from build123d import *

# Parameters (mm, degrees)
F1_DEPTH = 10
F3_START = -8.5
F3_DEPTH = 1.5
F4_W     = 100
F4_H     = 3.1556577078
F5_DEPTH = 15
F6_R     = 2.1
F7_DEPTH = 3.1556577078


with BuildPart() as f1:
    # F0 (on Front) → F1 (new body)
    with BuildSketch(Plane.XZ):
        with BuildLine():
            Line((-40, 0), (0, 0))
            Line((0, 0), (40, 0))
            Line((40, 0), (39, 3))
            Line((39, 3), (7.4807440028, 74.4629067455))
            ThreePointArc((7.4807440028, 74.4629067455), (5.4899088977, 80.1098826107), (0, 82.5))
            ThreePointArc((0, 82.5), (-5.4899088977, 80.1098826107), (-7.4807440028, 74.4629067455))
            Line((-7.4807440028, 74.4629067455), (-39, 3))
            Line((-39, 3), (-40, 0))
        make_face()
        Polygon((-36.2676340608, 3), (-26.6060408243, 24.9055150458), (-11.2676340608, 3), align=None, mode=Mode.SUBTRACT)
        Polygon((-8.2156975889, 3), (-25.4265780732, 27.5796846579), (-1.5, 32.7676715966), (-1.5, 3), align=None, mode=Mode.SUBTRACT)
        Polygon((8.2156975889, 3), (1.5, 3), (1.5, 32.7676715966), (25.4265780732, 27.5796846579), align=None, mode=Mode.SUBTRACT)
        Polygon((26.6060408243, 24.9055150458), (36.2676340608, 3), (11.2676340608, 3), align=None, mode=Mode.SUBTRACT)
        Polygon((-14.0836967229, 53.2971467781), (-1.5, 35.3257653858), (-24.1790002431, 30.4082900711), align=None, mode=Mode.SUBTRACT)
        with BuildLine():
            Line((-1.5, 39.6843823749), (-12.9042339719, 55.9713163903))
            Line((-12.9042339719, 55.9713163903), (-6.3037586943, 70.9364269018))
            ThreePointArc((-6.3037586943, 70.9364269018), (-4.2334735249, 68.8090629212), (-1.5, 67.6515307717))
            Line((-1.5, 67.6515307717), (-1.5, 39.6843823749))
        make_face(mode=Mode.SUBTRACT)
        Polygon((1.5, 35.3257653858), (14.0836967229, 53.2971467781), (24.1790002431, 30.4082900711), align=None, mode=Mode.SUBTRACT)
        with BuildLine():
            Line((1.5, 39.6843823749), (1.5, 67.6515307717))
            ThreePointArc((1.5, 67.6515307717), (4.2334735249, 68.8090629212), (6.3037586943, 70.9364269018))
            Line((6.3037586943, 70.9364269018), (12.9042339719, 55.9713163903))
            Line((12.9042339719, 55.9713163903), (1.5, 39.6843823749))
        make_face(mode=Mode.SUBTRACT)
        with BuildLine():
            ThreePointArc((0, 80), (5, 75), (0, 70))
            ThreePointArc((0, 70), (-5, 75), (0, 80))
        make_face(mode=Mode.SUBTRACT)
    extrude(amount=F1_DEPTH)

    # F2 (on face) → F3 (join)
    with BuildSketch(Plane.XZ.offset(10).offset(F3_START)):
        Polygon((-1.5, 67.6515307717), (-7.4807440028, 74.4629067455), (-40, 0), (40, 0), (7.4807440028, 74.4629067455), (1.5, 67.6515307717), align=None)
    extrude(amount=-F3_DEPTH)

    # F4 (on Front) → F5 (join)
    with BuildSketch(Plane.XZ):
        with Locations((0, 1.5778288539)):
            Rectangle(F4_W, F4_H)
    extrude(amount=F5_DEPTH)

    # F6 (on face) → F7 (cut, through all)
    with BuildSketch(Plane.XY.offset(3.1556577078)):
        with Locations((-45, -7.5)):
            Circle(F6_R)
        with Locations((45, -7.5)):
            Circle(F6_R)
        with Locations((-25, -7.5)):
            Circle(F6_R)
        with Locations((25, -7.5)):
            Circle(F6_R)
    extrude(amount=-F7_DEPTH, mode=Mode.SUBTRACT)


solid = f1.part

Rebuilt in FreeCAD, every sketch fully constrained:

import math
import FreeCAD as App
import Part
import Sketcher
Q = App.Units.Quantity

doc = App.newDocument("Part")
params = doc.addObject("Spreadsheet::Sheet", "Params")
for row, (alias, value) in enumerate([
    ("sketch1_diameter", "10 mm"),
    ("sketch1_radius", "7.5 mm"),
    ("sketch1_width", "80 mm"),
    ("sketch1_width2", "25 mm"),
    ("pad1_length", "10 mm"),
    ("sketch2_width", "80 mm"),
    ("sketch2_width2", "3 mm"),
    ("pad2_length", "1.5 mm"),
    ("sketch3_width", "100 mm"),
    ("pad3_length", "15 mm"),
    ("sketch4_diameter", "4.2 mm"),
], start=1):
    params.set(f"A{row}", alias)
    params.set(f"B{row}", "=" + value)
    params.setAlias(f"B{row}", alias)

body = doc.addObject("PartDesign::Body", "Body")

# Sketch on XZ plane
sketch1 = body.newObject("Sketcher::SketchObject", "Sketch")
sketch1.AttachmentSupport = (doc.getObject("XZ_Plane"), [""])
sketch1.MapMode = "FlatFace"
sketch1.addGeometry([
    Part.LineSegment(App.Vector(-40, 0, 0), App.Vector(40, 0, 0)),  # 0
    Part.LineSegment(App.Vector(40, 0, 0), App.Vector(39, 3, 0)),  # 1
    Part.LineSegment(App.Vector(39, 3, 0), App.Vector(7.5, 74.5, 0)),  # 2
    Part.ArcOfCircle(Part.Circle(App.Vector(0, 75, 0), App.Vector(0, 0, 1), 7.5), math.radians(-4), math.radians(90)),  # 3
    Part.ArcOfCircle(Part.Circle(App.Vector(0, 75, 0), App.Vector(0, 0, 1), 7.5), math.radians(90), math.radians(184)),  # 4
    Part.LineSegment(App.Vector(-7.5, 74.5, 0), App.Vector(-39, 3, 0)),  # 5
    Part.LineSegment(App.Vector(-39, 3, 0), App.Vector(-40, 0, 0)),  # 6
    Part.LineSegment(App.Vector(-11.3, 3, 0), App.Vector(-36.3, 3, 0)),  # 7
    Part.LineSegment(App.Vector(-36.3, 3, 0), App.Vector(-26.6, 24.9, 0)),  # 8
    Part.LineSegment(App.Vector(-26.6, 24.9, 0), App.Vector(-11.3, 3, 0)),  # 9
    Part.LineSegment(App.Vector(-1.5, 3, 0), App.Vector(-8.2, 3, 0)),  # 10
    Part.LineSegment(App.Vector(-8.2, 3, 0), App.Vector(-25.4, 27.6, 0)),  # 11
    Part.LineSegment(App.Vector(-25.4, 27.6, 0), App.Vector(-1.5, 32.8, 0)),  # 12
    Part.LineSegment(App.Vector(-1.5, 32.8, 0), App.Vector(-1.5, 3, 0)),  # 13
    Part.LineSegment(App.Vector(25.4, 27.6, 0), App.Vector(8.2, 3, 0)),  # 14
    Part.LineSegment(App.Vector(8.2, 3, 0), App.Vector(1.5, 3, 0)),  # 15
    Part.LineSegment(App.Vector(1.5, 3, 0), App.Vector(1.5, 32.8, 0)),  # 16
    Part.LineSegment(App.Vector(1.5, 32.8, 0), App.Vector(25.4, 27.6, 0)),  # 17
    Part.LineSegment(App.Vector(11.3, 3, 0), App.Vector(26.6, 24.9, 0)),  # 18
    Part.LineSegment(App.Vector(26.6, 24.9, 0), App.Vector(36.3, 3, 0)),  # 19
    Part.LineSegment(App.Vector(36.3, 3, 0), App.Vector(11.3, 3, 0)),  # 20
    Part.LineSegment(App.Vector(-24.2, 30.4, 0), App.Vector(-14.1, 53.3, 0)),  # 21
    Part.LineSegment(App.Vector(-14.1, 53.3, 0), App.Vector(-1.5, 35.3, 0)),  # 22
    Part.LineSegment(App.Vector(-1.5, 35.3, 0), App.Vector(-24.2, 30.4, 0)),  # 23
    Part.LineSegment(App.Vector(-1.5, 67.7, 0), App.Vector(-1.5, 39.7, 0)),  # 24
    Part.LineSegment(App.Vector(-1.5, 39.7, 0), App.Vector(-12.9, 56, 0)),  # 25
    Part.LineSegment(App.Vector(-12.9, 56, 0), App.Vector(-6.3, 70.9, 0)),  # 26
    Part.ArcOfCircle(Part.Circle(App.Vector(0, 75, 0), App.Vector(0, 0, 1), 7.5), math.radians(-147), math.radians(-102)),  # 27
    Part.LineSegment(App.Vector(24.2, 30.4, 0), App.Vector(1.5, 35.3, 0)),  # 28
    Part.LineSegment(App.Vector(1.5, 35.3, 0), App.Vector(14.1, 53.3, 0)),  # 29
    Part.LineSegment(App.Vector(14.1, 53.3, 0), App.Vector(24.2, 30.4, 0)),  # 30
    Part.LineSegment(App.Vector(12.9, 56, 0), App.Vector(1.5, 39.7, 0)),  # 31
    Part.LineSegment(App.Vector(1.5, 39.7, 0), App.Vector(1.5, 67.7, 0)),  # 32
    Part.ArcOfCircle(Part.Circle(App.Vector(0, 75, 0), App.Vector(0, 0, 1), 7.5), math.radians(-78), math.radians(-33)),  # 33
    Part.LineSegment(App.Vector(6.3, 70.9, 0), App.Vector(12.9, 56, 0)),  # 34
    Part.Circle(App.Vector(0, 75, 0), App.Vector(0, 0, 1), 5),  # 35
], False)
sketch1.addConstraint([
    Sketcher.Constraint("Coincident", 0, 2, 1, 1),
    Sketcher.Constraint("Coincident", 1, 2, 2, 1),
    Sketcher.Constraint("Coincident", 2, 2, 3, 1),
    Sketcher.Constraint("Tangent", 3, 2, 4, 1),
    Sketcher.Constraint("Coincident", 4, 2, 5, 1),
    Sketcher.Constraint("Coincident", 5, 2, 6, 1),
    Sketcher.Constraint("Coincident", 6, 2, 0, 1),
    Sketcher.Constraint("Coincident", 7, 2, 8, 1),
    Sketcher.Constraint("Coincident", 8, 2, 9, 1),
    Sketcher.Constraint("Coincident", 9, 2, 7, 1),
    Sketcher.Constraint("Coincident", 10, 2, 11, 1),
    Sketcher.Constraint("Coincident", 11, 2, 12, 1),
    Sketcher.Constraint("Coincident", 12, 2, 13, 1),
    Sketcher.Constraint("Coincident", 13, 2, 10, 1),
    Sketcher.Constraint("Coincident", 14, 2, 15, 1),
    Sketcher.Constraint("Coincident", 15, 2, 16, 1),
    Sketcher.Constraint("Coincident", 16, 2, 17, 1),
    Sketcher.Constraint("Coincident", 17, 2, 14, 1),
    Sketcher.Constraint("Coincident", 18, 2, 19, 1),
    Sketcher.Constraint("Coincident", 19, 2, 20, 1),
    Sketcher.Constraint("Coincident", 20, 2, 18, 1),
    Sketcher.Constraint("Coincident", 21, 2, 22, 1),
    Sketcher.Constraint("Coincident", 22, 2, 23, 1),
    Sketcher.Constraint("Coincident", 23, 2, 21, 1),
    Sketcher.Constraint("Coincident", 24, 2, 25, 1),
    Sketcher.Constraint("Coincident", 25, 2, 26, 1),
    Sketcher.Constraint("Coincident", 26, 2, 27, 1),
    Sketcher.Constraint("Coincident", 27, 2, 24, 1),
    Sketcher.Constraint("Coincident", 28, 2, 29, 1),
    Sketcher.Constraint("Coincident", 29, 2, 30, 1),
    Sketcher.Constraint("Coincident", 30, 2, 28, 1),
    Sketcher.Constraint("Coincident", 31, 2, 32, 1),
    Sketcher.Constraint("Coincident", 32, 2, 33, 1),
    Sketcher.Constraint("Coincident", 33, 2, 34, 1),
    Sketcher.Constraint("Coincident", 34, 2, 31, 1),
    Sketcher.Constraint("Horizontal", 0),
    Sketcher.Constraint("Horizontal", 7),
    Sketcher.Constraint("Horizontal", 10),
    Sketcher.Constraint("Vertical", 13),
    Sketcher.Constraint("Horizontal", 15),
    Sketcher.Constraint("Vertical", 16),
    Sketcher.Constraint("Horizontal", 20),
    Sketcher.Constraint("Vertical", 24),
    Sketcher.Constraint("Vertical", 32),
    Sketcher.Constraint("Coincident", 27, 3, 3, 3),
    Sketcher.Constraint("Coincident", 33, 3, 3, 3),
    Sketcher.Constraint("Coincident", 35, 3, 3, 3),
    Sketcher.Constraint("Equal", 3, 4),
    Sketcher.Constraint("Equal", 4, 27),
    Sketcher.Constraint("Equal", 27, 33),
    Sketcher.Constraint("Symmetric", 0, 2, 6, 2, -1, 1),
    Sketcher.Constraint("Symmetric", 2, 2, 4, 2, -2),
    Sketcher.Constraint("Symmetric", 1, 2, 5, 2, -2),
    Sketcher.Constraint("Symmetric", 10, 2, 14, 2, -2),
    Sketcher.Constraint("Symmetric", 12, 2, 16, 2, -2),
    Sketcher.Constraint("Symmetric", 11, 2, 17, 2, -2),
    Sketcher.Constraint("Symmetric", 8, 2, 18, 2, -2),
    Sketcher.Constraint("Symmetric", 7, 2, 19, 2, -2),
    Sketcher.Constraint("Symmetric", 22, 2, 28, 2, -2),
    Sketcher.Constraint("Symmetric", 21, 2, 29, 2, -2),
    Sketcher.Constraint("Symmetric", 23, 2, 30, 2, -2),
    Sketcher.Constraint("Symmetric", 24, 2, 31, 2, -2),
    Sketcher.Constraint("Symmetric", 25, 2, 34, 2, -2),
    Sketcher.Constraint("PointOnObject", 3, 2, -2),
    Sketcher.Constraint("Parallel", 5, 8),
    Sketcher.Constraint("Parallel", 9, 11),
    Sketcher.Constraint("Parallel", 14, 18),
    Sketcher.Constraint("Parallel", 8, 21),
    Sketcher.Constraint("Parallel", 11, 22),
    Sketcher.Constraint("Parallel", 12, 23),
    Sketcher.Constraint("Parallel", 22, 25),
    Sketcher.Constraint("Parallel", 21, 26),
    Sketcher.Constraint("Parallel", 30, 34),
    Sketcher.Constraint("Horizontal", 5, 2, 7, 2),
    Sketcher.Constraint("Horizontal", 9, 2, 10, 2),
    Sketcher.Constraint("Vertical", 13, 2, 22, 2),
    Sketcher.Constraint("Vertical", 22, 2, 24, 2),
    Sketcher.Constraint("Diameter", 35, Q("10 mm")),
    Sketcher.Constraint("Radius", 3, Q("7.5 mm")),
    Sketcher.Constraint("DistanceX", 0, 1, 0, 2, Q("80 mm")),
    Sketcher.Constraint("DistanceX", 7, 2, 7, 1, Q("25 mm")),
    Sketcher.Constraint("Angle", 9, Q("-55 deg")),
    Sketcher.Constraint("DistanceY", -1, 1, 3, 3, Q("75 mm")),
    Sketcher.Constraint("DistanceX", -1, 1, 1, 2, Q("39 mm")),
    Sketcher.Constraint("DistanceY", -1, 1, 1, 2, Q("3 mm")),
    Sketcher.Constraint("DistanceX", 13, 2, 15, 2, Q("3 mm")),
    Sketcher.Constraint("DistanceX", 23, 2, -1, 1, Q("24.179 mm")),
    Sketcher.Constraint("DistanceY", 13, 2, 13, 1, Q("29.767672 mm")),
    Sketcher.Constraint("DistanceY", 24, 2, 24, 1, Q("27.967148 mm")),
    Sketcher.Constraint("DistanceX", 10, 2, 10, 1, Q("6.715698 mm")),
    Sketcher.Constraint("DistanceX", 8, 2, -1, 1, Q("26.606041 mm")),
    Sketcher.Constraint("DistanceX", 11, 2, -1, 1, Q("25.426578 mm")),
    Sketcher.Constraint("DistanceY", -1, 1, 23, 2, Q("30.40829 mm")),
    Sketcher.Constraint("DistanceX", 26, 2, -1, 1, Q("6.303759 mm")),
    Sketcher.Constraint("DistanceX", 7, 2, 4, 2, Q("28.78689 mm")),
])
sketch1.setExpression("Constraints[77]", "Params.sketch1_diameter")
sketch1.setExpression("Constraints[78]", "Params.sketch1_radius")
sketch1.setExpression("Constraints[79]", "Params.sketch1_width")
sketch1.setExpression("Constraints[80]", "Params.sketch1_width2")
pad1 = body.newObject("PartDesign::Pad", "Pad")
pad1.Profile = sketch1
pad1.setExpression("Length", "Params.pad1_length")

# Sketch on XZ plane
sketch2 = body.newObject("Sketcher::SketchObject", "Sketch001")
sketch2.AttachmentSupport = (doc.getObject("XZ_Plane"), [""])
sketch2.MapMode = "FlatFace"
sketch2.AttachmentOffset = App.Placement(App.Vector(0, 0, 1.5), App.Rotation())
sketch2.addGeometry([
    Part.LineSegment(App.Vector(-1.5, 67.7, 0), App.Vector(-7.5, 74.5, 0)),  # 0
    Part.LineSegment(App.Vector(-7.5, 74.5, 0), App.Vector(-40, 0, 0)),  # 1
    Part.LineSegment(App.Vector(-40, 0, 0), App.Vector(40, 0, 0)),  # 2
    Part.LineSegment(App.Vector(40, 0, 0), App.Vector(7.5, 74.5, 0)),  # 3
    Part.LineSegment(App.Vector(7.5, 74.5, 0), App.Vector(1.5, 67.7, 0)),  # 4
    Part.LineSegment(App.Vector(1.5, 67.7, 0), App.Vector(-1.5, 67.7, 0)),  # 5
], False)
sketch2.addConstraint([
    Sketcher.Constraint("Coincident", 0, 2, 1, 1),
    Sketcher.Constraint("Coincident", 1, 2, 2, 1),
    Sketcher.Constraint("Coincident", 2, 2, 3, 1),
    Sketcher.Constraint("Coincident", 3, 2, 4, 1),
    Sketcher.Constraint("Coincident", 4, 2, 5, 1),
    Sketcher.Constraint("Coincident", 5, 2, 0, 1),
    Sketcher.Constraint("Horizontal", 2),
    Sketcher.Constraint("Horizontal", 5),
    Sketcher.Constraint("Symmetric", 1, 2, 2, 2, -1, 1),
    Sketcher.Constraint("Symmetric", 0, 2, 3, 2, -2),
    Sketcher.Constraint("Equal", 0, 4),
    Sketcher.Constraint("DistanceX", 2, 1, 2, 2, Q("80 mm")),
    Sketcher.Constraint("DistanceX", 5, 2, 5, 1, Q("3 mm")),
    Sketcher.Constraint("DistanceY", -1, 1, 4, 2, Q("67.651531 mm")),
    Sketcher.Constraint("DistanceX", 0, 2, 3, 2, Q("14.961488 mm")),
    Sketcher.Constraint("Distance", 0, Q("9.064444 mm")),
])
sketch2.setExpression("Constraints[11]", "Params.sketch2_width")
sketch2.setExpression("Constraints[12]", "Params.sketch2_width2")
pad2 = body.newObject("PartDesign::Pad", "Pad001")
pad2.Profile = sketch2
pad2.setExpression("Length", "Params.pad2_length")
pad2.Reversed = True

# Sketch on XZ plane
sketch3 = body.newObject("Sketcher::SketchObject", "Sketch002")
sketch3.AttachmentSupport = (doc.getObject("XZ_Plane"), [""])
sketch3.MapMode = "FlatFace"
sketch3.addGeometry([
    Part.LineSegment(App.Vector(-50, 3.2, 0), App.Vector(-50, 0, 0)),
    Part.LineSegment(App.Vector(-50, 0, 0), App.Vector(50, 0, 0)),
    Part.LineSegment(App.Vector(50, 0, 0), App.Vector(50, 3.2, 0)),
    Part.LineSegment(App.Vector(50, 3.2, 0), App.Vector(-50, 3.2, 0)),
], False)
sketch3.addConstraint([
    Sketcher.Constraint("Coincident", 0, 2, 1, 1),
    Sketcher.Constraint("Coincident", 1, 2, 2, 1),
    Sketcher.Constraint("Coincident", 2, 2, 3, 1),
    Sketcher.Constraint("Coincident", 3, 2, 0, 1),
    Sketcher.Constraint("Vertical", 0),
    Sketcher.Constraint("Horizontal", 1),
    Sketcher.Constraint("Vertical", 2),
    Sketcher.Constraint("Horizontal", 3),
    Sketcher.Constraint("Symmetric", 0, 2, 1, 2, -1, 1),
    Sketcher.Constraint("DistanceX", 1, 1, 1, 2, Q("100 mm")),
    Sketcher.Constraint("DistanceY", 0, 2, 0, 1, Q("3.155658 mm")),
])
sketch3.setExpression("Constraints[9]", "Params.sketch3_width")
pad3 = body.newObject("PartDesign::Pad", "Pad002")
pad3.Profile = sketch3
pad3.setExpression("Length", "Params.pad3_length")

# Sketch on XY plane
sketch4 = body.newObject("Sketcher::SketchObject", "Sketch003")
sketch4.AttachmentSupport = (doc.getObject("XY_Plane"), [""])
sketch4.MapMode = "FlatFace"
sketch4.AttachmentOffset = App.Placement(App.Vector(0, 0, 3.155658), App.Rotation())
sketch4.addGeometry([
    Part.Circle(App.Vector(-45, -7.5, 0), App.Vector(0, 0, 1), 2.1),
    Part.Circle(App.Vector(45, -7.5, 0), App.Vector(0, 0, 1), 2.1),
    Part.Circle(App.Vector(-25, -7.5, 0), App.Vector(0, 0, 1), 2.1),
    Part.Circle(App.Vector(25, -7.5, 0), App.Vector(0, 0, 1), 2.1),
], False)
sketch4.addConstraint([
    Sketcher.Constraint("Equal", 0, 1),
    Sketcher.Constraint("Equal", 1, 2),
    Sketcher.Constraint("Equal", 2, 3),
    Sketcher.Constraint("Symmetric", 0, 3, 1, 3, -2),
    Sketcher.Constraint("Symmetric", 2, 3, 3, 3, -2),
    Sketcher.Constraint("Horizontal", 1, 3, 2, 3),
    Sketcher.Constraint("Diameter", 0, Q("4.2 mm")),
    Sketcher.Constraint("DistanceX", 0, 3, -1, 1, Q("45 mm")),
    Sketcher.Constraint("DistanceX", 2, 3, -1, 1, Q("25 mm")),
    Sketcher.Constraint("DistanceY", 0, 3, -1, 1, Q("7.5 mm")),
])
sketch4.setExpression("Constraints[6]", "Params.sketch4_diameter")
pocket1 = body.newObject("PartDesign::Pocket", "Pocket")
pocket1.Profile = sketch4
pocket1.Type = "ThroughAll"

doc.recompute()
